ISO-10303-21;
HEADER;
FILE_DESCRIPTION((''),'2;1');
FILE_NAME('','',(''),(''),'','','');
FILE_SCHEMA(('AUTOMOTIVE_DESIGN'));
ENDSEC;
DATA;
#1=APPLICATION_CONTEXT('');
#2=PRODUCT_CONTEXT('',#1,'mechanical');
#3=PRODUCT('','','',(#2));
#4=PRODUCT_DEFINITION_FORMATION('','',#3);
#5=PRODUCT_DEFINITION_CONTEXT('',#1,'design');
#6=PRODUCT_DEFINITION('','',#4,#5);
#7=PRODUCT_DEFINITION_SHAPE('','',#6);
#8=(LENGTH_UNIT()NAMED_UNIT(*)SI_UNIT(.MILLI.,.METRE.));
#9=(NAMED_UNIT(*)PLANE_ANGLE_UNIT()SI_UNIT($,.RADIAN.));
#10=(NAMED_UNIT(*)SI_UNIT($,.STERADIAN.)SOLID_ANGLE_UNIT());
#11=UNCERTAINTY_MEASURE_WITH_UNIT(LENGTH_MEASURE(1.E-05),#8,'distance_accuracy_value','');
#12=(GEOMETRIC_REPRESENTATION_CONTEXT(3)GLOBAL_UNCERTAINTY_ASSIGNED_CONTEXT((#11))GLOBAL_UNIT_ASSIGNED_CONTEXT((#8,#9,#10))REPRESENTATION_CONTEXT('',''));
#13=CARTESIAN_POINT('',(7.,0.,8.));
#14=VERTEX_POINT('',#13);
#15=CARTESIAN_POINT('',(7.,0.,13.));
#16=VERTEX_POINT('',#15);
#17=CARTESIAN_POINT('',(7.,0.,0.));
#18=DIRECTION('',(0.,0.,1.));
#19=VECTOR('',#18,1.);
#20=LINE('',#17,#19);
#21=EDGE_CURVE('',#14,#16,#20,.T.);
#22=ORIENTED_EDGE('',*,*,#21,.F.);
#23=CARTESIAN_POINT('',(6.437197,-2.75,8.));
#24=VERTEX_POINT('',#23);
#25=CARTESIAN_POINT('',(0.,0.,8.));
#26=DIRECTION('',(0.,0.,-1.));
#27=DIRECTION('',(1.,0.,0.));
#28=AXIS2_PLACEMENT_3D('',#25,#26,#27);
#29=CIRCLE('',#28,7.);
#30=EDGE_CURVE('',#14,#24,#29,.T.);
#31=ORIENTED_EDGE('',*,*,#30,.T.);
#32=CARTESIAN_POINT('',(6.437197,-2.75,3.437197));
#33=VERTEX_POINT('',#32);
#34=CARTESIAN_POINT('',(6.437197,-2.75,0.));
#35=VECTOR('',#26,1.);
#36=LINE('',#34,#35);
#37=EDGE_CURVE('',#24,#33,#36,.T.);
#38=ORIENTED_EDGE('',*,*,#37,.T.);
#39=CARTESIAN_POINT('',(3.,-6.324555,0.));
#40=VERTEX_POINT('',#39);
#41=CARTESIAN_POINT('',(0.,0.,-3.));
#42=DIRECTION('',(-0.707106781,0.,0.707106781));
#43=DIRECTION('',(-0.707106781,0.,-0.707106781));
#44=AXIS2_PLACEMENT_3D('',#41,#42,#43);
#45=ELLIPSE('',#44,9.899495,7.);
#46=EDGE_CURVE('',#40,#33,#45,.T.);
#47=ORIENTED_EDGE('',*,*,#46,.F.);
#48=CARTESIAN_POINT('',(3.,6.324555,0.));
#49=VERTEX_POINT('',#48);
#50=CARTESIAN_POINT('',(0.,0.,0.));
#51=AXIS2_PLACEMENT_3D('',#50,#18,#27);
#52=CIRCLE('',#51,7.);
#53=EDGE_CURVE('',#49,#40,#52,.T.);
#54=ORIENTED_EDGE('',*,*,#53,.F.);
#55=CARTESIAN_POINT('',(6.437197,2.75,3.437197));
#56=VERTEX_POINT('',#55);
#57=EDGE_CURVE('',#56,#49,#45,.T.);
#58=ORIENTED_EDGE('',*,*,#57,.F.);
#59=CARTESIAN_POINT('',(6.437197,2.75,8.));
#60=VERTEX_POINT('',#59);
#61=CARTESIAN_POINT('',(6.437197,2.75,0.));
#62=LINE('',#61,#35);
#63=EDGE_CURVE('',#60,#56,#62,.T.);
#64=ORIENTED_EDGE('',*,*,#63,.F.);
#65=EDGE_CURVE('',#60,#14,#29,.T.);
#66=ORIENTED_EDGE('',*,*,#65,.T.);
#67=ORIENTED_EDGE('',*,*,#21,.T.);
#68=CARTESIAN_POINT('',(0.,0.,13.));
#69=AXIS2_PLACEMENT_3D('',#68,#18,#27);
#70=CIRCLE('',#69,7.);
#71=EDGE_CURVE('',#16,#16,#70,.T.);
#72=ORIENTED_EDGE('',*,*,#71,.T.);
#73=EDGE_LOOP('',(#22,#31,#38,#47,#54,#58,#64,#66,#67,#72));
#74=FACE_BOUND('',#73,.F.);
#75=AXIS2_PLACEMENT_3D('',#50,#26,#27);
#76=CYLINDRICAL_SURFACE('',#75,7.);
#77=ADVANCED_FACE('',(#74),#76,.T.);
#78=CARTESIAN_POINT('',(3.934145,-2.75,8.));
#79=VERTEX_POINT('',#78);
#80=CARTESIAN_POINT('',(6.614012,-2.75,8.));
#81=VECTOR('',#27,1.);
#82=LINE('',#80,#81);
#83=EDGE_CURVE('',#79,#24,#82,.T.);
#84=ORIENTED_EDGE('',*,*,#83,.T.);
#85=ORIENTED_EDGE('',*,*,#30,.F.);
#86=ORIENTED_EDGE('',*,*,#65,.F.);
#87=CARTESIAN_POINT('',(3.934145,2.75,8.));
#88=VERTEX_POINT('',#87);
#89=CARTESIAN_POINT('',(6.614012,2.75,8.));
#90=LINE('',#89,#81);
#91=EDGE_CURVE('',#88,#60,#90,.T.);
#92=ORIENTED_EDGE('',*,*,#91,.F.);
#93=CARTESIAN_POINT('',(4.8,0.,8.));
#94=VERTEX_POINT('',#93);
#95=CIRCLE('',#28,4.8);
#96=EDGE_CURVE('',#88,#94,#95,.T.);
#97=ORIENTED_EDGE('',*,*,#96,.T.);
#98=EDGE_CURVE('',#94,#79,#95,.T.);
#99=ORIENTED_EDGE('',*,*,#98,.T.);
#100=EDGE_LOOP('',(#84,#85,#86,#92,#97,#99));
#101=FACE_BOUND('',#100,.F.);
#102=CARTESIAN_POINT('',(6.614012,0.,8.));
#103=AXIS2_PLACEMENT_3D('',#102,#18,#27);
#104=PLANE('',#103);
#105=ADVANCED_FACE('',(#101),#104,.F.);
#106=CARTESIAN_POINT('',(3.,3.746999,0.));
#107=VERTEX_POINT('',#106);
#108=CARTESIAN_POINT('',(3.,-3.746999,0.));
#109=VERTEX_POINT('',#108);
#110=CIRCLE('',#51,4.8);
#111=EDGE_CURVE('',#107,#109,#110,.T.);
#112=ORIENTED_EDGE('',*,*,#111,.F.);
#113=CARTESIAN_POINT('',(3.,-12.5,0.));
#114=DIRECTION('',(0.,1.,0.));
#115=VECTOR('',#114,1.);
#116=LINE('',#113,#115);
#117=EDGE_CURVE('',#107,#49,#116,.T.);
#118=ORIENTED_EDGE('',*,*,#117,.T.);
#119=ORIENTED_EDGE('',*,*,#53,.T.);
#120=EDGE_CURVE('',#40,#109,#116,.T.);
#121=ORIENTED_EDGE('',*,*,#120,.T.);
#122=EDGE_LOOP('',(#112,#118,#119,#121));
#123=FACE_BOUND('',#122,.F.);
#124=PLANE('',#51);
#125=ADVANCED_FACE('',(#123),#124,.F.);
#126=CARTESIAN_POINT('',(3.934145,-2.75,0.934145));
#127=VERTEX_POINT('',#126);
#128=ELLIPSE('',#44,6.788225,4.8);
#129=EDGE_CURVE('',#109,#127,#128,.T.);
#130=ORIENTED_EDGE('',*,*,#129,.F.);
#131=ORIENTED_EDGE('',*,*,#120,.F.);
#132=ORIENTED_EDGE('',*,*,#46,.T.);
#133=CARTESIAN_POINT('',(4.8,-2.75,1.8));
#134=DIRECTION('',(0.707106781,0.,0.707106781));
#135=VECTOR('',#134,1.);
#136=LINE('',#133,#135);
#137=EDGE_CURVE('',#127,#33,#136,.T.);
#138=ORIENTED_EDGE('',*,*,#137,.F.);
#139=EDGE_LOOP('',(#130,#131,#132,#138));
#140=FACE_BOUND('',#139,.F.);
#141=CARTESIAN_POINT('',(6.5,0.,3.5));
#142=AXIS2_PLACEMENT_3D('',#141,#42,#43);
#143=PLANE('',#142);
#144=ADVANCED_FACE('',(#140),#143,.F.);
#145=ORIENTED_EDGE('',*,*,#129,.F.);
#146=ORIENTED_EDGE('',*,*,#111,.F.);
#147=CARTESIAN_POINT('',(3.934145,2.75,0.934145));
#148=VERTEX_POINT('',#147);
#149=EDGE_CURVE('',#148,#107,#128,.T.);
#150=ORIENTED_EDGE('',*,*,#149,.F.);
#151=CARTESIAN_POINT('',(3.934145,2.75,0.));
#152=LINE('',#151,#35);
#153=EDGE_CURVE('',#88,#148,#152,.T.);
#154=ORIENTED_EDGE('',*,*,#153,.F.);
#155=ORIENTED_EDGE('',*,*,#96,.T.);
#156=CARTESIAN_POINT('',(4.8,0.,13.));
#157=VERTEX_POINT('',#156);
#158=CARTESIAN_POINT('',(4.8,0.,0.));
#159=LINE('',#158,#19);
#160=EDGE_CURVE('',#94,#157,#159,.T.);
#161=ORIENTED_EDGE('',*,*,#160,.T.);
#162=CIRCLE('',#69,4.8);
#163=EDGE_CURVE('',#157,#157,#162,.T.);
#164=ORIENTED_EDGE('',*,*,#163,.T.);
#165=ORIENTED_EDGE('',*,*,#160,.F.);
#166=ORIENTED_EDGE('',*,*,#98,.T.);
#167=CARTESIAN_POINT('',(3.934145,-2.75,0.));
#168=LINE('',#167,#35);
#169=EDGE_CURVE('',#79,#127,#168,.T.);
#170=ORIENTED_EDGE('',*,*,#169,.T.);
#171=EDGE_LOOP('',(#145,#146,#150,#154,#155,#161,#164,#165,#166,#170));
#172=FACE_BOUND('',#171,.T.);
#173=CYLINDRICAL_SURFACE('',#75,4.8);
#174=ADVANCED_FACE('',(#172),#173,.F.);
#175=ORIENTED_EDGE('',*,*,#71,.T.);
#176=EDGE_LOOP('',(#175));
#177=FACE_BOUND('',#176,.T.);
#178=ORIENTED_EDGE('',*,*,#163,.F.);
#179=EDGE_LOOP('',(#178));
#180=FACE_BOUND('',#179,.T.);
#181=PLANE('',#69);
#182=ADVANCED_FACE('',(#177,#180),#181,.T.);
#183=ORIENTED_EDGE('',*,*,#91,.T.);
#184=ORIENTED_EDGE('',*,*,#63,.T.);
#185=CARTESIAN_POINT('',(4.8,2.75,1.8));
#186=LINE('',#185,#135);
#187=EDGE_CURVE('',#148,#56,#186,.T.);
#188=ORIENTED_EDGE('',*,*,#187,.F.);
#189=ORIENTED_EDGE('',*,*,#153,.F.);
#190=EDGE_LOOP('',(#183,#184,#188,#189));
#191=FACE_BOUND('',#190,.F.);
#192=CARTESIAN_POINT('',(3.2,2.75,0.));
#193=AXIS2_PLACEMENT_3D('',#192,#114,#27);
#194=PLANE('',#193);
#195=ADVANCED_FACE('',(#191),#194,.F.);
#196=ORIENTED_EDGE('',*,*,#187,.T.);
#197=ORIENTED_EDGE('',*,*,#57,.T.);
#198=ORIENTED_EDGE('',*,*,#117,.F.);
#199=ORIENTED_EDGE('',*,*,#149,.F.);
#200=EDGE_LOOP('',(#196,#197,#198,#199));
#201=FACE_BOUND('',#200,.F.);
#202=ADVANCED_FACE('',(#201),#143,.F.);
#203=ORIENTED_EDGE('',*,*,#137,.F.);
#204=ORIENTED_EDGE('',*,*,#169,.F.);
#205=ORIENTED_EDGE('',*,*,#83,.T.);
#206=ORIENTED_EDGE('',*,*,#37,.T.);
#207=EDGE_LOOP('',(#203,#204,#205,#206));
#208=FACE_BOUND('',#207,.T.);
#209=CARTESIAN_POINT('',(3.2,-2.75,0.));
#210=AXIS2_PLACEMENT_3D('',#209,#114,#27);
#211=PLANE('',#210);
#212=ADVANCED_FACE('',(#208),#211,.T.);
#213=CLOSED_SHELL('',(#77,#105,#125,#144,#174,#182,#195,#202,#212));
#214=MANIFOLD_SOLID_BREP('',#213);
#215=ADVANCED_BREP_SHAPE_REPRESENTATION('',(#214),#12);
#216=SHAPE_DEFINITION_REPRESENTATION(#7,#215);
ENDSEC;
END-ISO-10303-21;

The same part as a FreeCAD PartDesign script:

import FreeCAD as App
import Part
import Sketcher
from FreeCAD import Vector


def add_polygon(sketch, points):
    """Adds a closed chain of lines whose ends are joined by coincident constraints."""
    first, n = sketch.GeometryCount, len(points)
    for a, b in zip(points, points[1:] + points[:1]):
        sketch.addGeometry(Part.LineSegment(App.Vector(*a, 0), App.Vector(*b, 0)), False)
    for i in range(n):
        sketch.addConstraint(Sketcher.Constraint("Coincident", first + i, 2, first + (i + 1) % n, 1))

doc = App.newDocument("Part")
params = doc.addObject("Spreadsheet::Sheet", "Params")
for row, (alias, value) in enumerate([
    ("sketch1_diameter", "14 mm"),
    ("sketch1_diameter2", "9.6 mm"),
    ("pad1_length", "13 mm"),
    ("sketch2_height", "5.5 mm"),
    ("pocket1_length", "8 mm"),
    ("sketch3_width", "3.5 mm"),
    ("pocket2_length", "25 mm"),
], start=1):
    params.set(f"A{row}", alias)
    params.set(f"B{row}", "=" + value)
    params.setAlias(f"B{row}", alias)

body = doc.addObject("PartDesign::Body", "Body")

sketch1 = body.newObject("Sketcher::SketchObject", "Sketch")
sketch1.AttachmentSupport = (doc.getObject("XY_Plane"), [""])
sketch1.MapMode = "FlatFace"
sketch1.addGeometry(Part.Circle(Vector(0, 0, 0), Vector(0, 0, 1), 7), False)
sketch1.addGeometry(Part.Circle(Vector(0, 0, 0), Vector(0, 0, 1), 4.8), False)
sketch1.addConstraint(Sketcher.Constraint("Coincident", 0, 3, -1, 1))
sketch1.addConstraint(Sketcher.Constraint("Coincident", 1, 3, -1, 1))
sketch1.addConstraint(Sketcher.Constraint("Diameter", 0, 14.0))
sketch1.addConstraint(Sketcher.Constraint("Diameter", 1, 9.6))
sketch1.setExpression("Constraints[2]", "Params.sketch1_diameter")
sketch1.setExpression("Constraints[3]", "Params.sketch1_diameter2")
pad1 = body.newObject("PartDesign::Pad", "Pad")
pad1.Profile = sketch1
pad1.setExpression("Length", "Params.pad1_length")

sketch2 = body.newObject("Sketcher::SketchObject", "Sketch001")
sketch2.AttachmentSupport = (doc.getObject("XY_Plane"), [""])
sketch2.MapMode = "FlatFace"
add_polygon(sketch2, [(3, 3), (3, -3), (10, -3), (10, 3)])
sketch2.addConstraint(Sketcher.Constraint("Vertical", 0))
sketch2.addConstraint(Sketcher.Constraint("Horizontal", 1))
sketch2.addConstraint(Sketcher.Constraint("Vertical", 2))
sketch2.addConstraint(Sketcher.Constraint("Horizontal", 3))
sketch2.addConstraint(Sketcher.Constraint("DistanceY", 0, 2, 0, 1, 5.5))
sketch2.addConstraint(Sketcher.Constraint("DistanceX", -1, 1, 0, 2, 3.2))
sketch2.addConstraint(Sketcher.Constraint("DistanceY", 0, 2, -1, 1, 2.75))
sketch2.addConstraint(Sketcher.Constraint("DistanceX", 1, 1, 1, 2, 6.828025))
sketch2.setExpression("Constraints[8]", "Params.sketch2_height")
pocket1 = body.newObject("PartDesign::Pocket", "Pocket")
pocket1.Profile = sketch2
pocket1.setExpression("Length", "Params.pocket1_length")
pocket1.Reversed = True

sketch3 = body.newObject("Sketcher::SketchObject", "Sketch002")
sketch3.AttachmentSupport = (doc.getObject("XZ_Plane"), [""])
sketch3.MapMode = "FlatFace"
add_polygon(sketch3, [(3, 0), (6.5, 0), (6.5, 3.5)])
sketch3.addConstraint(Sketcher.Constraint("Horizontal", 0))
sketch3.addConstraint(Sketcher.Constraint("Vertical", 1))
sketch3.addConstraint(Sketcher.Constraint("PointOnObject", 0, 2, -1))
sketch3.addConstraint(Sketcher.Constraint("Equal", 0, 1))
sketch3.addConstraint(Sketcher.Constraint("DistanceX", 0, 1, 0, 2, 3.5))
sketch3.addConstraint(Sketcher.Constraint("DistanceX", -1, 1, 2, 2, 3.0))
sketch3.setExpression("Constraints[7]", "Params.sketch3_width")
pocket2 = body.newObject("PartDesign::Pocket", "Pocket001")
pocket2.Profile = sketch3
pocket2.setExpression("Length", "Params.pocket2_length")
pocket2.Midplane = True

doc.recompute()
